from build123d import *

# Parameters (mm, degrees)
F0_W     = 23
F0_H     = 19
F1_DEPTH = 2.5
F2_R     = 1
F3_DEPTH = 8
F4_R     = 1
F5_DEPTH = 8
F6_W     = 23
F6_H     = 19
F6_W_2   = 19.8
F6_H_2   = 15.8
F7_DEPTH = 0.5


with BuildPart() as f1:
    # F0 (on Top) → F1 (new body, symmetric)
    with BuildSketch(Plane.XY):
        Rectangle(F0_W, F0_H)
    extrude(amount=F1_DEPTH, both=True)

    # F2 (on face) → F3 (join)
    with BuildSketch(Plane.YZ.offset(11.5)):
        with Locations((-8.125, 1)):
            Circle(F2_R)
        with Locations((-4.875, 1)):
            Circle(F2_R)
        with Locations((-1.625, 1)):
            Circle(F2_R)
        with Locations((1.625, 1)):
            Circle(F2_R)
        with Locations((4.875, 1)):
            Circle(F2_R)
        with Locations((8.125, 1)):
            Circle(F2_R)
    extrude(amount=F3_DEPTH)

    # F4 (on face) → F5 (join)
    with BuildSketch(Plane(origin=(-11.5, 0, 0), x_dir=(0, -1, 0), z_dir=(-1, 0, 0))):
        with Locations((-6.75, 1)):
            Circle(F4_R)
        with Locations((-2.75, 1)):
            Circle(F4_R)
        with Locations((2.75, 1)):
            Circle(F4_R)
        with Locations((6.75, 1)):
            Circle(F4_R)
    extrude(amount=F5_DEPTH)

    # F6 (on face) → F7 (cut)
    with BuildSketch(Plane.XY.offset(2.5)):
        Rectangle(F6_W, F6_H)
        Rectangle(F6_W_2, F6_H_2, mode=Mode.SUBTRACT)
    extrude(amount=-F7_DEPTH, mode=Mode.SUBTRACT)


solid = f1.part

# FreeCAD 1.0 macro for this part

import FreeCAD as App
import Part
import Sketcher

V = App.Vector

doc = App.newDocument("Part")
body = doc.addObject("PartDesign::Body", "Body")

sketch1 = body.newObject("Sketcher::SketchObject", "Sketch")
sketch1.AttachmentSupport = (doc.getObject("XY_Plane"), [""])
sketch1.MapMode = "FlatFace"
sketch1.addGeometry(Part.LineSegment(V(-12, 10, 0), V(-12, -10, 0)), False)
sketch1.addGeometry(Part.LineSegment(V(-12, -10, 0), V(12, -10, 0)), False)
sketch1.addGeometry(Part.LineSegment(V(12, -10, 0), V(12, 10, 0)), False)
sketch1.addGeometry(Part.LineSegment(V(12, 10, 0), V(-12, 10, 0)), False)
sketch1.addConstraint(Sketcher.Constraint("Coincident", 0, 2, 1, 1))
sketch1.addConstraint(Sketcher.Constraint("Coincident", 1, 2, 2, 1))
sketch1.addConstraint(Sketcher.Constraint("Coincident", 2, 2, 3, 1))
sketch1.addConstraint(Sketcher.Constraint("Coincident", 3, 2, 0, 1))
sketch1.addConstraint(Sketcher.Constraint("Vertical", 0))
sketch1.addConstraint(Sketcher.Constraint("Horizontal", 1))
sketch1.addConstraint(Sketcher.Constraint("Vertical", 2))
sketch1.addConstraint(Sketcher.Constraint("Horizontal", 3))
sketch1.addConstraint(Sketcher.Constraint("Symmetric", 0, 2, 2, 2, -1, 1))
sketch1.addConstraint(Sketcher.Constraint("DistanceX", 1, 1, 1, 2, 23.0))
sketch1.addConstraint(Sketcher.Constraint("DistanceY", 0, 2, 0, 1, 19.0))
pad1 = body.newObject("PartDesign::Pad", "Pad")
pad1.Profile = sketch1
pad1.Length = 5
pad1.Midplane = True

sketch2 = body.newObject("Sketcher::SketchObject", "Sketch001")
sketch2.AttachmentSupport = (doc.getObject("YZ_Plane"), [""])
sketch2.MapMode = "FlatFace"
sketch2.AttachmentOffset = App.Placement(V(0, 0, 11.5), App.Rotation())
sketch2.addGeometry(Part.Circle(V(-8.1, 1, 0), V(0, 0, 1), 1), False)
sketch2.addGeometry(Part.Circle(V(-4.9, 1, 0), V(0, 0, 1), 1), False)
sketch2.addGeometry(Part.Circle(V(-1.6, 1, 0), V(0, 0, 1), 1), False)
sketch2.addGeometry(Part.Circle(V(1.6, 1, 0), V(0, 0, 1), 1), False)
sketch2.addGeometry(Part.Circle(V(4.9, 1, 0), V(0, 0, 1), 1), False)
sketch2.addGeometry(Part.Circle(V(8.1, 1, 0), V(0, 0, 1), 1), False)
sketch2.addConstraint(Sketcher.Constraint("Equal", 0, 1))
sketch2.addConstraint(Sketcher.Constraint("Equal", 1, 2))
sketch2.addConstraint(Sketcher.Constraint("Equal", 2, 3))
sketch2.addConstraint(Sketcher.Constraint("Equal", 3, 4))
sketch2.addConstraint(Sketcher.Constraint("Equal", 4, 5))
sketch2.addConstraint(Sketcher.Constraint("Symmetric", 2, 3, 3, 3, -2))
sketch2.addConstraint(Sketcher.Constraint("Symmetric", 1, 3, 4, 3, -2))
sketch2.addConstraint(Sketcher.Constraint("Symmetric", 0, 3, 5, 3, -2))
sketch2.addConstraint(Sketcher.Constraint("Horizontal", 0, 3, 1, 3))
sketch2.addConstraint(Sketcher.Constraint("Horizontal", 1, 3, 2, 3))
sketch2.addConstraint(Sketcher.Constraint("Diameter", 0, 2.0))
sketch2.addConstraint(Sketcher.Constraint("DistanceY", -1, 1, 0, 3, 1.0))
sketch2.addConstraint(Sketcher.Constraint("DistanceX", 0, 3, 4, 3, 13.0))
sketch2.addConstraint(Sketcher.Constraint("DistanceX", 0, 3, 2, 3, 6.5))
sketch2.addConstraint(Sketcher.Constraint("DistanceX", 0, 3, 1, 3, 3.25))
pad2 = body.newObject("PartDesign::Pad", "Pad001")
pad2.Profile = sketch2
pad2.Length = 8

sketch3 = body.newObject("Sketcher::SketchObject", "Sketch002")
sketch3.AttachmentSupport = (doc.getObject("YZ_Plane"), [""])
sketch3.MapMode = "FlatFace"
sketch3.AttachmentOffset = App.Placement(V(0, 0, -11.5), App.Rotation())
sketch3.addGeometry(Part.Circle(V(6.8, 1, 0), V(0, 0, 1), 1), False)
sketch3.addGeometry(Part.Circle(V(2.8, 1, 0), V(0, 0, 1), 1), False)
sketch3.addGeometry(Part.Circle(V(-2.8, 1, 0), V(0, 0, 1), 1), False)
sketch3.addGeometry(Part.Circle(V(-6.8, 1, 0), V(0, 0, 1), 1), False)
sketch3.addConstraint(Sketcher.Constraint("Equal", 0, 1))
sketch3.addConstraint(Sketcher.Constraint("Equal", 1, 2))
sketch3.addConstraint(Sketcher.Constraint("Equal", 2, 3))
sketch3.addConstraint(Sketcher.Constraint("Symmetric", 1, 3, 2, 3, -2))
sketch3.addConstraint(Sketcher.Constraint("Symmetric", 0, 3, 3, 3, -2))
sketch3.addConstraint(Sketcher.Constraint("Horizontal", 0, 3, 1, 3))
sketch3.addConstraint(Sketcher.Constraint("Diameter", 0, 2.0))
sketch3.addConstraint(Sketcher.Constraint("DistanceY", -1, 1, 0, 3, 1.0))
sketch3.addConstraint(Sketcher.Constraint("DistanceX", 1, 3, 0, 3, 4.0))
sketch3.addConstraint(Sketcher.Constraint("DistanceX", 2, 3, 1, 3, 5.5))
pad3 = body.newObject("PartDesign::Pad", "Pad002")
pad3.Profile = sketch3
pad3.Length = 8
pad3.Reversed = True

sketch4 = body.newObject("Sketcher::SketchObject", "Sketch003")
sketch4.AttachmentSupport = (doc.getObject("XY_Plane"), [""])
sketch4.MapMode = "FlatFace"
sketch4.AttachmentOffset = App.Placement(V(0, 0, 2.5), App.Rotation())
sketch4.addGeometry(Part.LineSegment(V(-12, 10, 0), V(-12, -10, 0)), False)
sketch4.addGeometry(Part.LineSegment(V(-12, -10, 0), V(12, -10, 0)), False)
sketch4.addGeometry(Part.LineSegment(V(12, -10, 0), V(12, 10, 0)), False)
sketch4.addGeometry(Part.LineSegment(V(12, 10, 0), V(-12, 10, 0)), False)
sketch4.addGeometry(Part.LineSegment(V(10, -8, 0), V(-10, -8, 0)), False)
sketch4.addGeometry(Part.LineSegment(V(-10, -8, 0), V(-10, 8, 0)), False)
sketch4.addGeometry(Part.LineSegment(V(-10, 8, 0), V(10, 8, 0)), False)
sketch4.addGeometry(Part.LineSegment(V(10, 8, 0), V(10, -8, 0)), False)
sketch4.addConstraint(Sketcher.Constraint("Coincident", 0, 2, 1, 1))
sketch4.addConstraint(Sketcher.Constraint("Coincident", 1, 2, 2, 1))
sketch4.addConstraint(Sketcher.Constraint("Coincident", 2, 2, 3, 1))
sketch4.addConstraint(Sketcher.Constraint("Coincident", 3, 2, 0, 1))
sketch4.addConstraint(Sketcher.Constraint("Coincident", 4, 2, 5, 1))
sketch4.addConstraint(Sketcher.Constraint("Coincident", 5, 2, 6, 1))
sketch4.addConstraint(Sketcher.Constraint("Coincident", 6, 2, 7, 1))
sketch4.addConstraint(Sketcher.Constraint("Coincident", 7, 2, 4, 1))
sketch4.addConstraint(Sketcher.Constraint("Vertical", 0))
sketch4.addConstraint(Sketcher.Constraint("Horizontal", 1))
sketch4.addConstraint(Sketcher.Constraint("Vertical", 2))
sketch4.addConstraint(Sketcher.Constraint("Horizontal", 3))
sketch4.addConstraint(Sketcher.Constraint("Horizontal", 4))
sketch4.addConstraint(Sketcher.Constraint("Vertical", 5))
sketch4.addConstraint(Sketcher.Constraint("Horizontal", 6))
sketch4.addConstraint(Sketcher.Constraint("Vertical", 7))
sketch4.addConstraint(Sketcher.Constraint("Symmetric", 0, 2, 2, 2, -1, 1))
sketch4.addConstraint(Sketcher.Constraint("Symmetric", 4, 2, 6, 2, -1, 1))
sketch4.addConstraint(Sketcher.Constraint("DistanceX", 1, 1, 1, 2, 23.0))
sketch4.addConstraint(Sketcher.Constraint("DistanceY", 0, 2, 0, 1, 19.0))
sketch4.addConstraint(Sketcher.Constraint("DistanceX", 4, 2, 4, 1, 19.8))
sketch4.addConstraint(Sketcher.Constraint("DistanceY", 5, 1, 5, 2, 15.8))
pocket1 = body.newObject("PartDesign::Pocket", "Pocket")
pocket1.Profile = sketch4
pocket1.Length = 0.5

doc.recompute()
